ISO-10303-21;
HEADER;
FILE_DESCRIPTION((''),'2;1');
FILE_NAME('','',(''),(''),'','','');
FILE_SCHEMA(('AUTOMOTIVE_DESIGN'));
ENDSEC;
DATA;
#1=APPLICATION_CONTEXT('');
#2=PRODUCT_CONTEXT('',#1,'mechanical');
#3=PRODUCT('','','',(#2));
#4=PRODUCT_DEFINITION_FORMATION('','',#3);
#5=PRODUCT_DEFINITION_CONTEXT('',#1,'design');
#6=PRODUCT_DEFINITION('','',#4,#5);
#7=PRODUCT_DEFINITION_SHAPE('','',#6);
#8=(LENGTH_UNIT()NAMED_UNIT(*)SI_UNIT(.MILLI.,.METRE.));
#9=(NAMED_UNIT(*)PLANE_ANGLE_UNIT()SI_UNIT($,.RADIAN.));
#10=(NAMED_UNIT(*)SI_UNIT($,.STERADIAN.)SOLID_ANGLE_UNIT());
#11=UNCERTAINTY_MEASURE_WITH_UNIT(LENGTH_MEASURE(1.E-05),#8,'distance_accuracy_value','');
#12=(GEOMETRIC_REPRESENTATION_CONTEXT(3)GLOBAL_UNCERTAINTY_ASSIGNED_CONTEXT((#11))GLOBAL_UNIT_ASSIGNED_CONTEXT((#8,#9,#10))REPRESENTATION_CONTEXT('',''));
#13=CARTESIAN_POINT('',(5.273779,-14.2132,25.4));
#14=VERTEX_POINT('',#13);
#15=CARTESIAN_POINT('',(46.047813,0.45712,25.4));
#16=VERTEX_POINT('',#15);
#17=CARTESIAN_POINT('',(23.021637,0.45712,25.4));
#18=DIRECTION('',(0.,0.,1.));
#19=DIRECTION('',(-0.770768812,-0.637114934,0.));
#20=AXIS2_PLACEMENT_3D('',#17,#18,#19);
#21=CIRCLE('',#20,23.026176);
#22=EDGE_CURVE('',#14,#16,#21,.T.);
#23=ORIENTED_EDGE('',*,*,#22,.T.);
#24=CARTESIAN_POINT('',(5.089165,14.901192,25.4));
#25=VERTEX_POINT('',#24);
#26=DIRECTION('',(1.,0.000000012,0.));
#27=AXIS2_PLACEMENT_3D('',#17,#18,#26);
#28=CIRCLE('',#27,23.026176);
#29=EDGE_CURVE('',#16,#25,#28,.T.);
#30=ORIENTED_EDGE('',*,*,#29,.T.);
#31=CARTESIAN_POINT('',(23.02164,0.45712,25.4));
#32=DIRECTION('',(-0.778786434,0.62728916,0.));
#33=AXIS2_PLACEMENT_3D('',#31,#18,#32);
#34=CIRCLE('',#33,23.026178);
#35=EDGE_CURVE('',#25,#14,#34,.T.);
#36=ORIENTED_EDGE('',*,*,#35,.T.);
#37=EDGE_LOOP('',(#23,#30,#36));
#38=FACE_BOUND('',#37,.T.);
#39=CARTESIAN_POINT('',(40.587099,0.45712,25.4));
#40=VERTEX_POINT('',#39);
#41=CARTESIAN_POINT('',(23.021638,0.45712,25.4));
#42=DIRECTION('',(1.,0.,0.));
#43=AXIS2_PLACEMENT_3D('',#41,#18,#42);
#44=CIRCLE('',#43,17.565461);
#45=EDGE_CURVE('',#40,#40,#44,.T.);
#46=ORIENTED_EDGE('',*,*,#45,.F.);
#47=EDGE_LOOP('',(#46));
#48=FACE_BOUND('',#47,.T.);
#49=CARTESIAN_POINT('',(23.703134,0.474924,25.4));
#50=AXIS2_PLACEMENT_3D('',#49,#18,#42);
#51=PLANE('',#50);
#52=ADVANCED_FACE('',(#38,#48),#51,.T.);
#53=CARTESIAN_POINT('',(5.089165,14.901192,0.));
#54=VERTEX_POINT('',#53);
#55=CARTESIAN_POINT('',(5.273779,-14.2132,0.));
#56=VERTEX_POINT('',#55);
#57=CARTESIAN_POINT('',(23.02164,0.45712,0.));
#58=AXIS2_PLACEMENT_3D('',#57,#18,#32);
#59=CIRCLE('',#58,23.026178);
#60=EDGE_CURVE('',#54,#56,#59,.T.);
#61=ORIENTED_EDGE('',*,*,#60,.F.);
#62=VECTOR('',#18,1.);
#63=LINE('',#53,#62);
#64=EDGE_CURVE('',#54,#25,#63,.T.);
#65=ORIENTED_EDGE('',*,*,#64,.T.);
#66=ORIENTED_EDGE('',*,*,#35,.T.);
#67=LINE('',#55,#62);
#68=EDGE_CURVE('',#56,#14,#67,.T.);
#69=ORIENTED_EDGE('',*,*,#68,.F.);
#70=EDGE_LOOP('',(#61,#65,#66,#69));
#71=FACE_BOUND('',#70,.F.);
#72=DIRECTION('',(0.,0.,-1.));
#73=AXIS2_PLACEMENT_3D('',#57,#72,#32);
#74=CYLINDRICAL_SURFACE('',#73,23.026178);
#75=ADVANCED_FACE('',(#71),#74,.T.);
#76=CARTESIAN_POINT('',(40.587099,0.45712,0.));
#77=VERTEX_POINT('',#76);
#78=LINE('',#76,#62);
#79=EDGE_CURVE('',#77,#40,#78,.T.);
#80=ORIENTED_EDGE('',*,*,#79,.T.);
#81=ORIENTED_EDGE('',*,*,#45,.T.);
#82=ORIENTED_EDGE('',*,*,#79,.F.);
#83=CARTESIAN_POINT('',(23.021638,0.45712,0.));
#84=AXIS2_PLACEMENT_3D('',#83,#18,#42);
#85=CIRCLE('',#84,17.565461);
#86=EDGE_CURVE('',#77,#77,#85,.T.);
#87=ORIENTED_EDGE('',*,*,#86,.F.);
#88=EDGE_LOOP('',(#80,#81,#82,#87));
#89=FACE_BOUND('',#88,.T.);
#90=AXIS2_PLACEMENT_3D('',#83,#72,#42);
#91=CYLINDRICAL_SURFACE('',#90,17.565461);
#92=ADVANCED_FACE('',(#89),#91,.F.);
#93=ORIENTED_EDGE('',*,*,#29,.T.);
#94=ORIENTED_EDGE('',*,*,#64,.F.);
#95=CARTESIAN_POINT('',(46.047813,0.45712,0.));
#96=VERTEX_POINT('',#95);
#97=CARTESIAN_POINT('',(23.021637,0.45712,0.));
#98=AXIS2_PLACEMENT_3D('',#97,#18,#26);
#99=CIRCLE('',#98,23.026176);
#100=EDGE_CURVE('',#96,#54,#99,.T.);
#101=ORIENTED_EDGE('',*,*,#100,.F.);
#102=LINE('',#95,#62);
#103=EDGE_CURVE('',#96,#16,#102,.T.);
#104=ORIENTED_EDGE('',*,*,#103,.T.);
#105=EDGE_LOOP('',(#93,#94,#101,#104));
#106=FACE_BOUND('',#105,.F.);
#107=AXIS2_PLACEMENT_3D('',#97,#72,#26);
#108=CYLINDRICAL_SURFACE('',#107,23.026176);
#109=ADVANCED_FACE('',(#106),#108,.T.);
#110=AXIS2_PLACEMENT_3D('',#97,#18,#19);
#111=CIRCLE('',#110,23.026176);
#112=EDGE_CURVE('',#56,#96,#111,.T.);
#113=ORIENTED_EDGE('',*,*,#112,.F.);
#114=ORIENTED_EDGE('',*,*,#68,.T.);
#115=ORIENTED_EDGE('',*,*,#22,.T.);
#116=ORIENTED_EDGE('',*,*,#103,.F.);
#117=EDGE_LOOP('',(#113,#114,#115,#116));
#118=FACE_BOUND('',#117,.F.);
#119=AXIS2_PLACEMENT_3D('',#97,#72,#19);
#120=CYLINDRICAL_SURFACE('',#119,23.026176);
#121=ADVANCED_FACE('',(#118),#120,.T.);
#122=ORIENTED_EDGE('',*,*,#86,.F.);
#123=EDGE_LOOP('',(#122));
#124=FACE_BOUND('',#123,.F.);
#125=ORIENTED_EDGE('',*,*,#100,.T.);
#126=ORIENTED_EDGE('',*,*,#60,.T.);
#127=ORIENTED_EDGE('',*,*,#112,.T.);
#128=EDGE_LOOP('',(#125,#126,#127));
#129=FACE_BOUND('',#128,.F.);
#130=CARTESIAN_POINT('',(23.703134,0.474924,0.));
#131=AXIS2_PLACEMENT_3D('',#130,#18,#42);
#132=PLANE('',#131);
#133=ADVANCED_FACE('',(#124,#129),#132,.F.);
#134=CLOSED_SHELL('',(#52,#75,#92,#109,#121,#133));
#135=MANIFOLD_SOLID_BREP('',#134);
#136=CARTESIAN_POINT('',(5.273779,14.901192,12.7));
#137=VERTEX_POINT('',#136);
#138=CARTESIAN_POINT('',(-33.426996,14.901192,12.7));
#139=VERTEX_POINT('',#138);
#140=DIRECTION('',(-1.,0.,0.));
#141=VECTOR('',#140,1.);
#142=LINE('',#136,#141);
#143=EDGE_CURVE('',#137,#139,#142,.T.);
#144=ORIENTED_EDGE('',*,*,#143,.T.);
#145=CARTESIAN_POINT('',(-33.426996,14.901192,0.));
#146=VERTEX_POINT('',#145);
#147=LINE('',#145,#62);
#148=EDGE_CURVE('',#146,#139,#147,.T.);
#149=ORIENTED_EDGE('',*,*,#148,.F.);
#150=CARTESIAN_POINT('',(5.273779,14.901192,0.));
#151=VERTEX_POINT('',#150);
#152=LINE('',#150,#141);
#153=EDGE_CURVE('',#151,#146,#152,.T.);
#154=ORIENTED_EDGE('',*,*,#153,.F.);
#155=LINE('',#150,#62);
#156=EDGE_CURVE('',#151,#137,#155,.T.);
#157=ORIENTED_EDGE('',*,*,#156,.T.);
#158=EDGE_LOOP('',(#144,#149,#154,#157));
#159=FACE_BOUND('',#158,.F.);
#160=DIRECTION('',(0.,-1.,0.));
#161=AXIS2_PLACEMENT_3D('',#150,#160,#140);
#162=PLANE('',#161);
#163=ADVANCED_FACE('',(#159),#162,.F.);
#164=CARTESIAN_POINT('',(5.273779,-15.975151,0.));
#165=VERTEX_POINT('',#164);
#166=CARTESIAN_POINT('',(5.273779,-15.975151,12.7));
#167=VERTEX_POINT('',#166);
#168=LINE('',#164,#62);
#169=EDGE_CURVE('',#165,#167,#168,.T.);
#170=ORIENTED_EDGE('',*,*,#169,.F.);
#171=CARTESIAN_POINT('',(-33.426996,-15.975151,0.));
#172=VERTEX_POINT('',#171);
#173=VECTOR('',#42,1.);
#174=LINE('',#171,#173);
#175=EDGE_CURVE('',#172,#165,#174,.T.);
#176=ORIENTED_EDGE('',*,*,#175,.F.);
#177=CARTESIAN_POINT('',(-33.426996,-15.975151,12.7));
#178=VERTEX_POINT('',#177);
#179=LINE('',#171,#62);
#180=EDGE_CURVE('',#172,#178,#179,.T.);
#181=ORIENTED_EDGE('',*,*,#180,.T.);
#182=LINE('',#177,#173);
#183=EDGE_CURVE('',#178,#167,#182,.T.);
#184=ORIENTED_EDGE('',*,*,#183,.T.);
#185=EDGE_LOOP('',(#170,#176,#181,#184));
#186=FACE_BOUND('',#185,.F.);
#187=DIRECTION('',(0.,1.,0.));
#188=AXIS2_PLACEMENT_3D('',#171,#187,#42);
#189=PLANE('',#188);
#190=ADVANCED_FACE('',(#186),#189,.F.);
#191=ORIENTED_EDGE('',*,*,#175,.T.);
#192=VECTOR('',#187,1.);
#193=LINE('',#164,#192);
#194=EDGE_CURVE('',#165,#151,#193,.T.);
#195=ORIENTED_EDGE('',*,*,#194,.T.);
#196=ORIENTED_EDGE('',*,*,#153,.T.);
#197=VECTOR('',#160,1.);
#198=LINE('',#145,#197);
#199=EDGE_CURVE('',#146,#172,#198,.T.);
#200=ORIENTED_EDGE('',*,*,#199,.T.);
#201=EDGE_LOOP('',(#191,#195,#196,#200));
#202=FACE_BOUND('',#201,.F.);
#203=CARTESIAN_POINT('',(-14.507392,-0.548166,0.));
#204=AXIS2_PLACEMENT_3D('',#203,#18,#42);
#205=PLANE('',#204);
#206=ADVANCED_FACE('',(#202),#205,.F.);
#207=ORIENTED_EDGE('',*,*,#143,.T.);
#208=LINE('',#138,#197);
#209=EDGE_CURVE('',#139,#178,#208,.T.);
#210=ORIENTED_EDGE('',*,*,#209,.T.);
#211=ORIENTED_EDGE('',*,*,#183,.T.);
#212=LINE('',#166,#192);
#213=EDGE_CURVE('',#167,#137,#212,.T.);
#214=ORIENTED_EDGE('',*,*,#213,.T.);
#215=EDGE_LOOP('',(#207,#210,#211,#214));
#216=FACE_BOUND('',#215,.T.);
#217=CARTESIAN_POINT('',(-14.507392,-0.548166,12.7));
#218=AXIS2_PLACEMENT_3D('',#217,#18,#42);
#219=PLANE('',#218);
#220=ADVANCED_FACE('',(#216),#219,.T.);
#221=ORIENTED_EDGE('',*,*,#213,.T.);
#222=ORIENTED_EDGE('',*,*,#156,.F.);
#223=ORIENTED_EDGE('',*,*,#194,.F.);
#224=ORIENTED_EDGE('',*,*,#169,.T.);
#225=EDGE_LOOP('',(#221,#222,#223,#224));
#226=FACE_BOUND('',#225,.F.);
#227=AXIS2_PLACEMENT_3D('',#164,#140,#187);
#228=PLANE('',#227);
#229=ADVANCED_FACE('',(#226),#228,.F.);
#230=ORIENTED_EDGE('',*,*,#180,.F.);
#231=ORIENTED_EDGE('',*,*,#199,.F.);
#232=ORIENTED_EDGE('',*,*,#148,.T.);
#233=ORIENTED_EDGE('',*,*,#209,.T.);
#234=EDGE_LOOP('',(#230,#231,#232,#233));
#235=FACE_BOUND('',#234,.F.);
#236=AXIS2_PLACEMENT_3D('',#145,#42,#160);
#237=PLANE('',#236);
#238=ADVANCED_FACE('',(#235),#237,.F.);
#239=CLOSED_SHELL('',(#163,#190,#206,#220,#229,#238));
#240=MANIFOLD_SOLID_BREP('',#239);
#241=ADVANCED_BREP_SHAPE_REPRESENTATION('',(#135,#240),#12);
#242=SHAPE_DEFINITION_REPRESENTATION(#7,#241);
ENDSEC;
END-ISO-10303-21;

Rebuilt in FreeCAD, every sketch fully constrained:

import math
import FreeCAD as App
import Part
import Sketcher

V = App.Vector
Q = App.Units.Quantity

doc = App.newDocument("Part")
body = doc.addObject("PartDesign::Body", "Body")

sketch1 = body.newObject("Sketcher::SketchObject", "Sketch")
sketch1.AttachmentSupport = (doc.getObject("XY_Plane"), [""])
sketch1.MapMode = "FlatFace"
sketch1.addGeometry([
    Part.LineSegment(V(-33, 15, 0), V(-33, -16, 0)),
    Part.LineSegment(V(-33, -16, 0), V(5, -16, 0)),
    Part.LineSegment(V(5, -16, 0), V(5, 15, 0)),
    Part.LineSegment(V(5, 15, 0), V(-33, 15, 0)),
], False)
sketch1.addConstraint([
    Sketcher.Constraint("Coincident", 0, 2, 1, 1),
    Sketcher.Constraint("Coincident", 1, 2, 2, 1),
    Sketcher.Constraint("Coincident", 2, 2, 3, 1),
    Sketcher.Constraint("Coincident", 3, 2, 0, 1),
    Sketcher.Constraint("Vertical", 0),
    Sketcher.Constraint("Horizontal", 1),
    Sketcher.Constraint("Vertical", 2),
    Sketcher.Constraint("Horizontal", 3),
    Sketcher.Constraint("DistanceX", 1, 1, 1, 2, 38.700775),
    Sketcher.Constraint("DistanceY", 0, 2, 0, 1, 30.876343),
    Sketcher.Constraint("DistanceY", 0, 2, -1, 1, 15.975151),
    Sketcher.Constraint("DistanceX", -1, 1, 1, 2, 5.273779),
])
pad1 = body.newObject("PartDesign::Pad", "Pad")
pad1.Profile = sketch1
pad1.Length = Q("0.5 in")
body2 = doc.addObject("PartDesign::Body", "Body001")

sketch2 = body2.newObject("Sketcher::SketchObject", "Sketch001")
sketch2.AttachmentSupport = (doc.getObject("XY_Plane001"), [""])
sketch2.MapMode = "FlatFace"
sketch2.addGeometry([
    Part.ArcOfCircle(Part.Circle(V(23, 0, 0), V(0, 0, 1), 23), math.radians(0), math.radians(141)),
    Part.ArcOfCircle(Part.Circle(V(23, 0, 0), V(0, 0, 1), 23), math.radians(141), math.radians(220)),
    Part.ArcOfCircle(Part.Circle(V(23, 0, 0), V(0, 0, 1), 23), math.radians(-140), math.radians(0)),
    Part.Circle(V(23, 0, 0), V(0, 0, 1), 18),
], False)
sketch2.addConstraint([
    Sketcher.Constraint("Tangent", 0, 2, 1, 1),
    Sketcher.Constraint("Tangent", 1, 2, 2, 1),
    Sketcher.Constraint("Tangent", 2, 2, 0, 1),
    Sketcher.Constraint("Coincident", 3, 3, 0, 3),
    Sketcher.Constraint("Horizontal", 3, 3, 2, 2),
    Sketcher.Constraint("Diameter", 3, 35.130922),
    Sketcher.Constraint("Radius", 0, 23.026176),
    Sketcher.Constraint("DistanceY", 1, 2, -1, 1, 14.2132),
    Sketcher.Constraint("DistanceY", -1, 1, 0, 3, 0.45712),
    Sketcher.Constraint("DistanceX", -1, 1, 1, 3, 23.02164),
    Sketcher.Constraint("DistanceY", -1, 1, 0, 2, 14.901192),
])
pad2 = body2.newObject("PartDesign::Pad", "Pad001")
pad2.Profile = sketch2
pad2.Length = Q("1 in")

doc.recompute()
